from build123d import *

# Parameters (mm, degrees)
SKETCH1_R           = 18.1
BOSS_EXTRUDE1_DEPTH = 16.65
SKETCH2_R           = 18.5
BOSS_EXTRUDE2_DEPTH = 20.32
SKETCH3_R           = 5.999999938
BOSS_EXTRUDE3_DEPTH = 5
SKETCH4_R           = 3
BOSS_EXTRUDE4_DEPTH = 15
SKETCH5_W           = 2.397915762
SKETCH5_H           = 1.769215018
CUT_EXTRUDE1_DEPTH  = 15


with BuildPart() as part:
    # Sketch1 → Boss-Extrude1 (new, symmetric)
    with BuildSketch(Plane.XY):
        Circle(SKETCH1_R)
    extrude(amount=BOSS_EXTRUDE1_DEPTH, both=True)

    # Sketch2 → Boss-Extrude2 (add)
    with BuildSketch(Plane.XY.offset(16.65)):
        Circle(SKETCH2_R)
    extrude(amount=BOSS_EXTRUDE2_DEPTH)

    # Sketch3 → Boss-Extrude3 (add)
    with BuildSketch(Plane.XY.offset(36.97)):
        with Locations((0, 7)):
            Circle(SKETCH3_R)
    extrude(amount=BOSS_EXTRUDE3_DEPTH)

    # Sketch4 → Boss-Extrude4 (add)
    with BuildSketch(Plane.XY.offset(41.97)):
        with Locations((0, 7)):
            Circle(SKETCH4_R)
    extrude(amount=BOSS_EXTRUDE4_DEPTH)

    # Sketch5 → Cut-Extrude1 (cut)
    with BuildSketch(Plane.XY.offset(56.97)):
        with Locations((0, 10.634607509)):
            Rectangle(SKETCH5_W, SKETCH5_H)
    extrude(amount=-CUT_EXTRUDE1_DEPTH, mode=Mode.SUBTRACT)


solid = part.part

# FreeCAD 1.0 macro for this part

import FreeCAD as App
import Part
import Sketcher
from FreeCAD import Vector
Q = App.Units.Quantity

doc = App.newDocument("Part")
params = doc.addObject("Spreadsheet::Sheet", "Params")
for row, (alias, value) in enumerate([
    ("sketch1_diameter", "36.2 mm"),
    ("pad1_length", "33.3 mm"),
    ("sketch2_diameter", "37 mm"),
    ("pad2_length", "20.32 mm"),
    ("sketch3_diameter", "12 mm"),
    ("pad3_length", "5 mm"),
    ("sketch4_diameter", "6 mm"),
    ("pad4_length", "15 mm"),
    ("pocket1_length", "15 mm"),
], start=1):
    params.set(f"A{row}", alias)
    params.set(f"B{row}", "=" + value)
    params.setAlias(f"B{row}", alias)

body = doc.addObject("PartDesign::Body", "Body")

sketch1 = body.newObject("Sketcher::SketchObject", "Sketch")
sketch1.AttachmentSupport = (doc.getObject("XY_Plane"), [""])
sketch1.MapMode = "FlatFace"
sketch1.addGeometry(Part.Circle(Vector(0, 0, 0), Vector(0, 0, 1), 18.1), False)
sketch1.addConstraint([
    Sketcher.Constraint("Coincident", 0, 3, -1, 1),
    Sketcher.Constraint("Diameter", 0, Q("36.2 mm")),
])
sketch1.setExpression("Constraints[1]", "Params.sketch1_diameter")
pad1 = body.newObject("PartDesign::Pad", "Pad")
pad1.Profile = sketch1
pad1.setExpression("Length", "Params.pad1_length")
pad1.Midplane = True

sketch2 = body.newObject("Sketcher::SketchObject", "Sketch001")
sketch2.AttachmentSupport = (doc.getObject("XY_Plane"), [""])
sketch2.MapMode = "FlatFace"
sketch2.AttachmentOffset = App.Placement(Vector(0, 0, 16.65), App.Rotation())
sketch2.addGeometry(Part.Circle(Vector(0, 0, 0), Vector(0, 0, 1), 18.5), False)
sketch2.addConstraint([
    Sketcher.Constraint("Coincident", 0, 3, -1, 1),
    Sketcher.Constraint("Diameter", 0, Q("37 mm")),
])
sketch2.setExpression("Constraints[1]", "Params.sketch2_diameter")
pad2 = body.newObject("PartDesign::Pad", "Pad001")
pad2.Profile = sketch2
pad2.setExpression("Length", "Params.pad2_length")

sketch3 = body.newObject("Sketcher::SketchObject", "Sketch002")
sketch3.AttachmentSupport = (doc.getObject("XY_Plane"), [""])
sketch3.MapMode = "FlatFace"
sketch3.AttachmentOffset = App.Placement(Vector(0, 0, 36.97), App.Rotation())
sketch3.addGeometry(Part.Circle(Vector(0, 7, 0), Vector(0, 0, 1), 6), False)
sketch3.addConstraint([
    Sketcher.Constraint("PointOnObject", 0, 3, -2),
    Sketcher.Constraint("Diameter", 0, Q("12 mm")),
    Sketcher.Constraint("DistanceY", -1, 1, 0, 3, Q("7 mm")),
])
sketch3.setExpression("Constraints[1]", "Params.sketch3_diameter")
pad3 = body.newObject("PartDesign::Pad", "Pad002")
pad3.Profile = sketch3
pad3.setExpression("Length", "Params.pad3_length")

sketch4 = body.newObject("Sketcher::SketchObject", "Sketch003")
sketch4.AttachmentSupport = (doc.getObject("XY_Plane"), [""])
sketch4.MapMode = "FlatFace"
sketch4.AttachmentOffset = App.Placement(Vector(0, 0, 41.97), App.Rotation())
sketch4.addGeometry(Part.Circle(Vector(0, 7, 0), Vector(0, 0, 1), 3), False)
sketch4.addConstraint([
    Sketcher.Constraint("PointOnObject", 0, 3, -2),
    Sketcher.Constraint("Diameter", 0, Q("6 mm")),
    Sketcher.Constraint("DistanceY", -1, 1, 0, 3, Q("7 mm")),
])
sketch4.setExpression("Constraints[1]", "Params.sketch4_diameter")
pad4 = body.newObject("PartDesign::Pad", "Pad003")
pad4.Profile = sketch4
pad4.setExpression("Length", "Params.pad4_length")

sketch5 = body.newObject("Sketcher::SketchObject", "Sketch004")
sketch5.AttachmentSupport = (doc.getObject("XY_Plane"), [""])
sketch5.MapMode = "FlatFace"
sketch5.AttachmentOffset = App.Placement(Vector(0, 0, 56.97), App.Rotation())
sketch5.addGeometry([
    Part.LineSegment(Vector(-1.198958, 11.519215, 0), Vector(-1.198958, 9.75, 0)),
    Part.LineSegment(Vector(-1.198958, 9.75, 0), Vector(1.198958, 9.75, 0)),
    Part.LineSegment(Vector(1.198958, 9.75, 0), Vector(1.198958, 11.519215, 0)),
    Part.LineSegment(Vector(1.198958, 11.519215, 0), Vector(-1.198958, 11.519215, 0)),
], False)
sketch5.addConstraint([
    Sketcher.Constraint("Coincident", 0, 2, 1, 1),
    Sketcher.Constraint("Coincident", 1, 2, 2, 1),
    Sketcher.Constraint("Coincident", 2, 2, 3, 1),
    Sketcher.Constraint("Coincident", 3, 2, 0, 1),
    Sketcher.Constraint("Vertical", 0),
    Sketcher.Constraint("Horizontal", 1),
    Sketcher.Constraint("Vertical", 2),
    Sketcher.Constraint("Horizontal", 3),
    Sketcher.Constraint("DistanceY", -1, 1, 0, 2, Q("9.75 mm")),
    Sketcher.Constraint("DistanceX", 1, 1, 1, 2, Q("2.397916 mm")),
    Sketcher.Constraint("DistanceY", 0, 2, 0, 1, Q("1.769215 mm")),
    Sketcher.Constraint("DistanceX", 0, 2, -1, 1, Q("1.198958 mm")),
])
pocket1 = body.newObject("PartDesign::Pocket", "Pocket")
pocket1.Profile = sketch5
pocket1.setExpression("Length", "Params.pocket1_length")

doc.recompute()
